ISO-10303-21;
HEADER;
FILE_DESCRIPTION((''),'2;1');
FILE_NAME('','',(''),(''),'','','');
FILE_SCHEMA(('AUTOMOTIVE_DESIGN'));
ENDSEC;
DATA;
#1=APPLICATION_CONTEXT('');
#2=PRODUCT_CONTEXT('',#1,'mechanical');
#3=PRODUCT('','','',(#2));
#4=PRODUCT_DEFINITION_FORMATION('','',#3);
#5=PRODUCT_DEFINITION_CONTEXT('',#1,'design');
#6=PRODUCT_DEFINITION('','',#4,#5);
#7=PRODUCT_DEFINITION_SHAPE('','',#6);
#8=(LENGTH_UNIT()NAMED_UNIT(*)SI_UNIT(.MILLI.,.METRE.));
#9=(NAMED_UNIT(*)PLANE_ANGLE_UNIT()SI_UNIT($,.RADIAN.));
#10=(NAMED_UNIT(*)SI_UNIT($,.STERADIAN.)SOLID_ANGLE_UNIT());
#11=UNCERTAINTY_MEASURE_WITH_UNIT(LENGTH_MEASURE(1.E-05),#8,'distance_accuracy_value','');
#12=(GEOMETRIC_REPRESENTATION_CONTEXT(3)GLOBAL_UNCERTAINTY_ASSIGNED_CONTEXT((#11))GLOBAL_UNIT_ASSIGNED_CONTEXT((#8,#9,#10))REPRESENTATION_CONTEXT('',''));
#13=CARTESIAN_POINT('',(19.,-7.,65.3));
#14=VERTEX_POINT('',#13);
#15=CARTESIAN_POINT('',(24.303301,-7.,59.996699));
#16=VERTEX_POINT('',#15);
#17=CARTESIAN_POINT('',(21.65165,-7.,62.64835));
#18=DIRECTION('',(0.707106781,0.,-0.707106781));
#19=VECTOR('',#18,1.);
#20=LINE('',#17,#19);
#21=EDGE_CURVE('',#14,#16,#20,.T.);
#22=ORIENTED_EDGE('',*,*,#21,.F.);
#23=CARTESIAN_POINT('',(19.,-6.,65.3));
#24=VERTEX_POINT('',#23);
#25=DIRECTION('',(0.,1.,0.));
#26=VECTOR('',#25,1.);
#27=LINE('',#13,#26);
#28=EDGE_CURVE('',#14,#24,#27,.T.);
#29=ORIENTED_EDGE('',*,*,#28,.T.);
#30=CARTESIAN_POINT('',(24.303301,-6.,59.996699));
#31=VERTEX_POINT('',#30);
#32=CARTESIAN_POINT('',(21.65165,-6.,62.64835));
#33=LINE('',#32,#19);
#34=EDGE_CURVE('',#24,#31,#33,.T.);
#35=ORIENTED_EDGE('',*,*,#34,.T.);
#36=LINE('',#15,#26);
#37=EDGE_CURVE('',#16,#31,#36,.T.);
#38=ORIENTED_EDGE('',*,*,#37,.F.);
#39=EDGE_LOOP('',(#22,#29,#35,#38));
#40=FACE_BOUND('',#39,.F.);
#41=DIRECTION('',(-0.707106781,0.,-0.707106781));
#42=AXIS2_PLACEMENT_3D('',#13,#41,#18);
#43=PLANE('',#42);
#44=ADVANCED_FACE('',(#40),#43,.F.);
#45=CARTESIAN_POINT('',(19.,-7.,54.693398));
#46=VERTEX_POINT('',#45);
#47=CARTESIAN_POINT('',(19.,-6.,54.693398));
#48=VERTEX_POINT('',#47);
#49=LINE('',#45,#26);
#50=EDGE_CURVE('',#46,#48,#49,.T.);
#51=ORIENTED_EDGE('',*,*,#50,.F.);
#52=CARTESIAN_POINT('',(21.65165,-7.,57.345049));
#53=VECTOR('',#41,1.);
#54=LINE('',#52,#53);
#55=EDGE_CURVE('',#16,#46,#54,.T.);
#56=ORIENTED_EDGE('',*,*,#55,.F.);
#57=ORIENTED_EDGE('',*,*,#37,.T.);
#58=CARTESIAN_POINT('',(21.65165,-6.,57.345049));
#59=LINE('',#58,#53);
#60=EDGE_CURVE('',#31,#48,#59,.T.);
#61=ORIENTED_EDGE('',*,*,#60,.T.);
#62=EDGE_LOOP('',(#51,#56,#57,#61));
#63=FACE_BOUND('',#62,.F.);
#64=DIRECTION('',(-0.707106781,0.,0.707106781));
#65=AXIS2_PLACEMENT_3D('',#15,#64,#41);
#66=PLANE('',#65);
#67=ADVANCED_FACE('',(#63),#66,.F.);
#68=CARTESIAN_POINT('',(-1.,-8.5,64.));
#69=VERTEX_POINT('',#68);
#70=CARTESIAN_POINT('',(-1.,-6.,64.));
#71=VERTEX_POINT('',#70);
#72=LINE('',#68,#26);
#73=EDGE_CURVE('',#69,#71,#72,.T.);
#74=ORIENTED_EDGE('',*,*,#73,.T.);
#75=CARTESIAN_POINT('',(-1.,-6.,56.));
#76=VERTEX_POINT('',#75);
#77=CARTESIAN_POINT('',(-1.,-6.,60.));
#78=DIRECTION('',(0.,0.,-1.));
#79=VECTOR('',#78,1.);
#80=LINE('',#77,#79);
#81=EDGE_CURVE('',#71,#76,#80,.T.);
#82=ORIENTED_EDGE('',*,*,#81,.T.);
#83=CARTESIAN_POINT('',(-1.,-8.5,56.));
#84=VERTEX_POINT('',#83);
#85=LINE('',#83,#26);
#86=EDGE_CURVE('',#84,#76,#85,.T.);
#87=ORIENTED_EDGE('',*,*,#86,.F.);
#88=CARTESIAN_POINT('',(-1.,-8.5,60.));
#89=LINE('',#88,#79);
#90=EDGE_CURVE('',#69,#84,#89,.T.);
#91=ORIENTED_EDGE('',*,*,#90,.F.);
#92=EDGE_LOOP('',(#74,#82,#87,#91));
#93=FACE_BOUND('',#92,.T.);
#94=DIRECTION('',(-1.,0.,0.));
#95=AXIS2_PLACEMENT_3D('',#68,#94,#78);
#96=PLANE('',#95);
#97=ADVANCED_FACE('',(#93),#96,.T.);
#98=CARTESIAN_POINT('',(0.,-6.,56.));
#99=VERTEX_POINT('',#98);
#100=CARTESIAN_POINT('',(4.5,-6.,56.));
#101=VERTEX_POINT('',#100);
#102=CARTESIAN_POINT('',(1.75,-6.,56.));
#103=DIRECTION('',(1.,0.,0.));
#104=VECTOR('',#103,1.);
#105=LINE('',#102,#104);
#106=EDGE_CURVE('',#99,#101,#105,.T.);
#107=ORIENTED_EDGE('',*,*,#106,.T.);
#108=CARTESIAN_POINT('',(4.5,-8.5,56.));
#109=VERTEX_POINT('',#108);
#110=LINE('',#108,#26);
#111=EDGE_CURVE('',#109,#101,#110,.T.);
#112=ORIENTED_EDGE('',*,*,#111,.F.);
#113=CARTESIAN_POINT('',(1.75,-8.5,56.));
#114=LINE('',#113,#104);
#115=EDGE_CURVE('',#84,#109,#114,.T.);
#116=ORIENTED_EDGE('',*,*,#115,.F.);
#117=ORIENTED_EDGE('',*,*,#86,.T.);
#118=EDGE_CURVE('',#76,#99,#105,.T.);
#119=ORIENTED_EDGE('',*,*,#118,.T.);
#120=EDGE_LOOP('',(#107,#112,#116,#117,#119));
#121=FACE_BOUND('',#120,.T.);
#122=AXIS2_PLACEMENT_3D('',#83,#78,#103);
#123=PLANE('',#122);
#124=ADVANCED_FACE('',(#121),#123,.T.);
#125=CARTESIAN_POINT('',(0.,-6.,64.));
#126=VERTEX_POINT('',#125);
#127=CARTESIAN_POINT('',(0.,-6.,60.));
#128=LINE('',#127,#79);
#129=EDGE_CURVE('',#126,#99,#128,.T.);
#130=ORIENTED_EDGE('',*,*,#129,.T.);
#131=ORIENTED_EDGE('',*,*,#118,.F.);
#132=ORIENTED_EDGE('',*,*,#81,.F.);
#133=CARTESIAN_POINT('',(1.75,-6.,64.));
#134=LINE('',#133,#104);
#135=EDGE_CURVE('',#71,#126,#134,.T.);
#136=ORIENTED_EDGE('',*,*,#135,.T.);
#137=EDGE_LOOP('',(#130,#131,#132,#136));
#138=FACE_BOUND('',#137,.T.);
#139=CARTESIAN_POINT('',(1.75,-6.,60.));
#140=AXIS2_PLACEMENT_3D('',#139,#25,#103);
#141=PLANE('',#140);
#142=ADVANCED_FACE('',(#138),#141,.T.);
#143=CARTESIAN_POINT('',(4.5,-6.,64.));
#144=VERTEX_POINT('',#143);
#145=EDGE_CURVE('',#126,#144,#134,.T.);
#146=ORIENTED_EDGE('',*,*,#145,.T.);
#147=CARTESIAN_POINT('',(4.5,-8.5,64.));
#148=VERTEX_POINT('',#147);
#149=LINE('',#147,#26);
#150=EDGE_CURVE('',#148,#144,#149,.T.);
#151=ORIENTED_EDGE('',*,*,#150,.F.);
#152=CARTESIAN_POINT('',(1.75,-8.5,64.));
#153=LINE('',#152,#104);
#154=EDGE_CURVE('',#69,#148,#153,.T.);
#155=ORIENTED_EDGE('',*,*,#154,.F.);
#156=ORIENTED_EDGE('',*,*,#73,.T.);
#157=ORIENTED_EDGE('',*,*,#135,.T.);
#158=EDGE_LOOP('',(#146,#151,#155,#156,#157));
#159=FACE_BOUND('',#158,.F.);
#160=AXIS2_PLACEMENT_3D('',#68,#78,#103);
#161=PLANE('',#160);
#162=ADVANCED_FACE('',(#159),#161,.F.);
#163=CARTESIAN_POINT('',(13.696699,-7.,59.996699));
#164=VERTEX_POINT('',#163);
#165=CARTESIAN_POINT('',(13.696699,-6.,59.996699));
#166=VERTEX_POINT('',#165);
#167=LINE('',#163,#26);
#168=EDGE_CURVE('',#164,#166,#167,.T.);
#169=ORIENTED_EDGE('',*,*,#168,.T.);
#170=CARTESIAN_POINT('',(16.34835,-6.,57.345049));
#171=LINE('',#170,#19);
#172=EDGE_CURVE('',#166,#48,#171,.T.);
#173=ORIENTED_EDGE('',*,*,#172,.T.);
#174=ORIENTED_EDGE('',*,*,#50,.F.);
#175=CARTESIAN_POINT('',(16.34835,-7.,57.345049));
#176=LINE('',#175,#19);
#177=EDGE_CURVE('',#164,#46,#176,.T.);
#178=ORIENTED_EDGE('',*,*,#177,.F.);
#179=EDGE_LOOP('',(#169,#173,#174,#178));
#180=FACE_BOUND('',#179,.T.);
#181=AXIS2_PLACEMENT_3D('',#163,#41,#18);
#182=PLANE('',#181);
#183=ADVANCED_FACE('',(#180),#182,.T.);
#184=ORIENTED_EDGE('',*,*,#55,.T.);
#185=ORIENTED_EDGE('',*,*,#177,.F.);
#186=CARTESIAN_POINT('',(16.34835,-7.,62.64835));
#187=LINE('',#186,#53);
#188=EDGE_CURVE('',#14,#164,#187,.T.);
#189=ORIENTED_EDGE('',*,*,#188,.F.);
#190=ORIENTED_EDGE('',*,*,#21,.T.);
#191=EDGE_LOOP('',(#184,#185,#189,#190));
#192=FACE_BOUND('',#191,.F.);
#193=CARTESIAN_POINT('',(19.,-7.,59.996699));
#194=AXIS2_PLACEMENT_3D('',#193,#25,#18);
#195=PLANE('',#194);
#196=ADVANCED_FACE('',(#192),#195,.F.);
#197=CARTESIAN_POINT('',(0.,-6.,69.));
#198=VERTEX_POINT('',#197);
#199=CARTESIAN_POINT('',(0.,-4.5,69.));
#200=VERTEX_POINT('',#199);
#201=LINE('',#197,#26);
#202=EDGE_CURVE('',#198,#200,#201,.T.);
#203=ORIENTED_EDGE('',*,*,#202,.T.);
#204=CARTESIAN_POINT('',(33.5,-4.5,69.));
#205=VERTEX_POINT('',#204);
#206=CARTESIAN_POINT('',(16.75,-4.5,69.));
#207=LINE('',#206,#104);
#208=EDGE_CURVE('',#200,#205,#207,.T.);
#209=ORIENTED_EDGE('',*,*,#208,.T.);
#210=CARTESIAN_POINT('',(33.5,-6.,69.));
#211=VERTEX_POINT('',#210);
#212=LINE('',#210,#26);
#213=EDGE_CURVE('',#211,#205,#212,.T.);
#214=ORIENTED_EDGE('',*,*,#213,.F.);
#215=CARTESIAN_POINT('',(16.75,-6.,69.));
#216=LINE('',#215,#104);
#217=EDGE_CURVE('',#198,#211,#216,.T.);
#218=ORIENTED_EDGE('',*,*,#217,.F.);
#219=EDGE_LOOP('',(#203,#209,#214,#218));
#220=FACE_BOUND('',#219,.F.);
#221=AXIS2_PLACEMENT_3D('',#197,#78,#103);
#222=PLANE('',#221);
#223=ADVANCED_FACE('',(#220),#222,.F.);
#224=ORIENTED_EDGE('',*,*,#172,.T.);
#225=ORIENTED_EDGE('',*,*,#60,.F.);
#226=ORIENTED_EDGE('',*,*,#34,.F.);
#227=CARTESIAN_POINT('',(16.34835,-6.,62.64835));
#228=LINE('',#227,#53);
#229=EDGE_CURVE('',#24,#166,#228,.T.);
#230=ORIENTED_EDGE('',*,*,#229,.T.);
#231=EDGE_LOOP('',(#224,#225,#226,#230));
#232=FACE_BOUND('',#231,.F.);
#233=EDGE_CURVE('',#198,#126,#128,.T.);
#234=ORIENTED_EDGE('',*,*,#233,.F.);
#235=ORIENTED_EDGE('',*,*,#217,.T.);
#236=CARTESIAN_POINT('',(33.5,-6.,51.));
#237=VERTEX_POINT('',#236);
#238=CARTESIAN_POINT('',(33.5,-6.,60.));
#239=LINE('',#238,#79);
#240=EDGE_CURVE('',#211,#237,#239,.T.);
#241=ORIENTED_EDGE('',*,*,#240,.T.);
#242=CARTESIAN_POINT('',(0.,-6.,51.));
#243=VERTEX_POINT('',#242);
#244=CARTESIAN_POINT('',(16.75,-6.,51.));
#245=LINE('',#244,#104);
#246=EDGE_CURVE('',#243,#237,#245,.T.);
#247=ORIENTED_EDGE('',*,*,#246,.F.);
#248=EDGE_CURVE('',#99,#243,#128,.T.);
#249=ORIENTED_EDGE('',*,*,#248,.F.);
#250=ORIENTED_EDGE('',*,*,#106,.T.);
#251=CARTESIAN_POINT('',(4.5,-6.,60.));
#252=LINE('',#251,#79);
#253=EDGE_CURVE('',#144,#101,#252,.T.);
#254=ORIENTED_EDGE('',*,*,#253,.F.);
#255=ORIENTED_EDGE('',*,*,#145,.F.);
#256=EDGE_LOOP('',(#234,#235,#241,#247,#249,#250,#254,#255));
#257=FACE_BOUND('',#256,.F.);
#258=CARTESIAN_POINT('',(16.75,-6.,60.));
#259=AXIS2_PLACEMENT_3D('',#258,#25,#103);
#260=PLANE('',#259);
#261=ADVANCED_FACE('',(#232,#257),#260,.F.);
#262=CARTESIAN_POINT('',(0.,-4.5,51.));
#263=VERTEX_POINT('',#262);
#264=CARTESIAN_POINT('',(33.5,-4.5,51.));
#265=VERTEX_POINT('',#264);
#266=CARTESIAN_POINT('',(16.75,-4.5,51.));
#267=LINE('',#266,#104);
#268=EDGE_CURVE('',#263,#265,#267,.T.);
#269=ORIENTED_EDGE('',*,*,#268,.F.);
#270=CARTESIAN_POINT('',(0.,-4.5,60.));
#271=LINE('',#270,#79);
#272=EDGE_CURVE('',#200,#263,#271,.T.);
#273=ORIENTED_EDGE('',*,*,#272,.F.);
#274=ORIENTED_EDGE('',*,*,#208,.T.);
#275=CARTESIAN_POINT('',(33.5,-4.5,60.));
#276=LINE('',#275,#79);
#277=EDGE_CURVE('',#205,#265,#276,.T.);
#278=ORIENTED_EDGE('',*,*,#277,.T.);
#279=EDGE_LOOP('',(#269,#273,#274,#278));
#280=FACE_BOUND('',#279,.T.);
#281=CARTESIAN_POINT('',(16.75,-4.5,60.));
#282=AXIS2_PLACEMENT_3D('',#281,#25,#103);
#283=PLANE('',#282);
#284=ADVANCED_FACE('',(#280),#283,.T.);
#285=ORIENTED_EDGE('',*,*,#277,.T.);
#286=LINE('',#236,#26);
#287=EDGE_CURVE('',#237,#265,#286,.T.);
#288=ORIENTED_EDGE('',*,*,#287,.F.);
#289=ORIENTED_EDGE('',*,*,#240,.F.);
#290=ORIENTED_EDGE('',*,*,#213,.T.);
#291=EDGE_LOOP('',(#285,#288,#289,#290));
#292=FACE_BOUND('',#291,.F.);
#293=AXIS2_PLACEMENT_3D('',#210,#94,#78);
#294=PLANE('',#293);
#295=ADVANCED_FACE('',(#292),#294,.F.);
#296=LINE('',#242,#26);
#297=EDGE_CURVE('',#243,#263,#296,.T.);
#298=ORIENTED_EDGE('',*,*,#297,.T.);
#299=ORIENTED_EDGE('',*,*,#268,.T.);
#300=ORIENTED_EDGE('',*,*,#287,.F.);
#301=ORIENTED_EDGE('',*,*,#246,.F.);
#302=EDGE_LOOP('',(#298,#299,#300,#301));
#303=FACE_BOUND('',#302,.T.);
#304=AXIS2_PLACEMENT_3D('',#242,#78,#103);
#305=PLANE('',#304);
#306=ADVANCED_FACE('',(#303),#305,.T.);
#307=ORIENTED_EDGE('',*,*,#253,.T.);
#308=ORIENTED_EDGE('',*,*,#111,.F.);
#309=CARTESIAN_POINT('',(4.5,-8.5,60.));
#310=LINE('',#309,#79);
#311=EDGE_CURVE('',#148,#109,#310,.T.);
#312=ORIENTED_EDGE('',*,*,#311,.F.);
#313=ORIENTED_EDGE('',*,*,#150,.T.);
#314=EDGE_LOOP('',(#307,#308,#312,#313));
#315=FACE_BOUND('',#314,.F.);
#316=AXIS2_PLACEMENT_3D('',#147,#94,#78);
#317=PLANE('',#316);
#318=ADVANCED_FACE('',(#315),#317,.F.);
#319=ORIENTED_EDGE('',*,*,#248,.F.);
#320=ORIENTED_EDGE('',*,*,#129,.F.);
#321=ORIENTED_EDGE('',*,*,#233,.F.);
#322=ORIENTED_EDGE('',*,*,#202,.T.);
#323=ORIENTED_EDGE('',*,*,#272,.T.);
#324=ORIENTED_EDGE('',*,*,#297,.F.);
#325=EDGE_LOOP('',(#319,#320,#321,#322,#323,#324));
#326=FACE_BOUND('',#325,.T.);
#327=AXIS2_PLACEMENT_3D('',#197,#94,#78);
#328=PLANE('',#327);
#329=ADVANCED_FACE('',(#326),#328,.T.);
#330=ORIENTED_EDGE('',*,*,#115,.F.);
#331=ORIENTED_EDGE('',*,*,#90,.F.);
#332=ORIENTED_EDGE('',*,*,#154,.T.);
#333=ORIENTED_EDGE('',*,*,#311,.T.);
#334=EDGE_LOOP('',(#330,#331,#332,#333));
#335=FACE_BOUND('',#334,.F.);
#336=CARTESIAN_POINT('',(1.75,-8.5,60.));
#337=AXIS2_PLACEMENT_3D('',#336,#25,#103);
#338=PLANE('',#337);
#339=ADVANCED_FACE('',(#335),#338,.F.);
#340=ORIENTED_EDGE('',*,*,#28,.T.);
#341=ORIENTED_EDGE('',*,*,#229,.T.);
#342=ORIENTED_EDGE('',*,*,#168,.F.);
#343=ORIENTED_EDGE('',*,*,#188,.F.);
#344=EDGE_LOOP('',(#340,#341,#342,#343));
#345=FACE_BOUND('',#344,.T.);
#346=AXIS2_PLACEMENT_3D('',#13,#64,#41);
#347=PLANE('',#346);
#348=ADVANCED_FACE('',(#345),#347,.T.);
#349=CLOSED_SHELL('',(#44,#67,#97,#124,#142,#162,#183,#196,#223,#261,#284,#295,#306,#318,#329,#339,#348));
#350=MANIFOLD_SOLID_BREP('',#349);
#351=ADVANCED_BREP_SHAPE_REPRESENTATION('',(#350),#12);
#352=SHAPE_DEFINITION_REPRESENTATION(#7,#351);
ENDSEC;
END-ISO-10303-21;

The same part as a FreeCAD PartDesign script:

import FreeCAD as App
import Part
import Sketcher
from FreeCAD import Vector
Q = App.Units.Quantity

doc = App.newDocument("Part")
params = doc.addObject("Spreadsheet::Sheet", "Params")
for row, (alias, value) in enumerate([
    ("sketch1_height", "18 mm"),
    ("sketch1_width", "33.5 mm"),
    ("pad1_length", "1.5 mm"),
    ("sketch2_height", "8 mm"),
    ("sketch2_width", "5.5 mm"),
    ("pad2_length", "2.5 mm"),
    ("sketch3_length", "7.5 mm"),
    ("pad3_length", "1 mm"),
], start=1):
    params.set(f"A{row}", alias)
    params.set(f"B{row}", "=" + value)
    params.setAlias(f"B{row}", alias)

body = doc.addObject("PartDesign::Body", "Body")

sketch1 = doc.addObject("Sketcher::SketchObject", "Sketch")
body.addObject(sketch1)
sketch1.AttachmentSupport = (doc.XZ_Plane, [""])
sketch1.MapMode = "FlatFace"
sketch1.addGeometry([
    Part.LineSegment(Vector(0, 18, 0), Vector(0, 0, 0)),
    Part.LineSegment(Vector(0, 0, 0), Vector(34, 0, 0)),
    Part.LineSegment(Vector(34, 0, 0), Vector(34, 18, 0)),
    Part.LineSegment(Vector(34, 18, 0), Vector(0, 18, 0)),
], False)
sketch1.addConstraint([
    Sketcher.Constraint("Coincident", 0, 2, 1, 1),
    Sketcher.Constraint("Coincident", 1, 2, 2, 1),
    Sketcher.Constraint("Coincident", 2, 2, 3, 1),
    Sketcher.Constraint("Coincident", 3, 2, 0, 1),
    Sketcher.Constraint("Vertical", 0),
    Sketcher.Constraint("Horizontal", 1),
    Sketcher.Constraint("Vertical", 2),
    Sketcher.Constraint("Horizontal", 3),
    Sketcher.Constraint("Coincident", 0, 2, -1, 1),
    Sketcher.Constraint("DistanceY", 0, 2, 0, 1, Q("18 mm")),
    Sketcher.Constraint("DistanceX", 1, 1, 1, 2, Q("33.5 mm")),
])
sketch1.setExpression("Constraints[9]", "Params.sketch1_height")
sketch1.setExpression("Constraints[10]", "Params.sketch1_width")
pad1 = doc.addObject("PartDesign::Pad", "Pad")
body.addObject(pad1)
pad1.Profile = sketch1
pad1.setExpression("Length", "Params.pad1_length")

sketch2 = doc.addObject("Sketcher::SketchObject", "Sketch001")
body.addObject(sketch2)
sketch2.AttachmentSupport = (doc.XZ_Plane, [""])
sketch2.MapMode = "FlatFace"
sketch2.AttachmentOffset = App.Placement(Vector(0, 0, -2.5), App.Rotation())
sketch2.addGeometry([
    Part.LineSegment(Vector(-1, 13, 0), Vector(-1, 5, 0)),
    Part.LineSegment(Vector(-1, 5, 0), Vector(4, 5, 0)),
    Part.LineSegment(Vector(4, 5, 0), Vector(4, 13, 0)),
    Part.LineSegment(Vector(4, 13, 0), Vector(-1, 13, 0)),
], False)
sketch2.addConstraint([
    Sketcher.Constraint("Coincident", 0, 2, 1, 1),
    Sketcher.Constraint("Coincident", 1, 2, 2, 1),
    Sketcher.Constraint("Coincident", 2, 2, 3, 1),
    Sketcher.Constraint("Coincident", 3, 2, 0, 1),
    Sketcher.Constraint("Vertical", 0),
    Sketcher.Constraint("Horizontal", 1),
    Sketcher.Constraint("Vertical", 2),
    Sketcher.Constraint("Horizontal", 3),
    Sketcher.Constraint("DistanceY", 0, 2, 0, 1, Q("8 mm")),
    Sketcher.Constraint("DistanceX", 1, 1, 1, 2, Q("5.5 mm")),
    Sketcher.Constraint("DistanceX", 0, 2, -1, 1, Q("1 mm")),
    Sketcher.Constraint("DistanceY", -1, 1, 0, 2, Q("5 mm")),
])
sketch2.setExpression("Constraints[8]", "Params.sketch2_height")
sketch2.setExpression("Constraints[9]", "Params.sketch2_width")
pad2 = doc.addObject("PartDesign::Pad", "Pad001")
body.addObject(pad2)
pad2.Profile = sketch2
pad2.setExpression("Length", "Params.pad2_length")

sketch3 = doc.addObject("Sketcher::SketchObject", "Sketch002")
body.addObject(sketch3)
sketch3.AttachmentSupport = (doc.XZ_Plane, [""])
sketch3.MapMode = "FlatFace"
sketch3.AttachmentOffset = App.Placement(Vector(0, 0, -1), App.Rotation())
sketch3.addGeometry([
    Part.LineSegment(Vector(14, 9, 0), Vector(19, 4, 0)),
    Part.LineSegment(Vector(19, 4, 0), Vector(24, 9, 0)),
    Part.LineSegment(Vector(24, 9, 0), Vector(19, 14, 0)),
    Part.LineSegment(Vector(19, 14, 0), Vector(14, 9, 0)),
], False)
sketch3.addConstraint([
    Sketcher.Constraint("Coincident", 0, 2, 1, 1),
    Sketcher.Constraint("Coincident", 1, 2, 2, 1),
    Sketcher.Constraint("Coincident", 2, 2, 3, 1),
    Sketcher.Constraint("Coincident", 3, 2, 0, 1),
    Sketcher.Constraint("Perpendicular", 0, 1),
    Sketcher.Constraint("Perpendicular", 1, 2),
    Sketcher.Constraint("Perpendicular", 2, 3),
    Sketcher.Constraint("Horizontal", 1, 2, 3, 2),
    Sketcher.Constraint("Vertical", 0, 2, 2, 2),
    Sketcher.Constraint("DistanceX", -1, 1, 0, 2, Q("19 mm")),
    Sketcher.Constraint("Distance", 0, Q("7.5 mm")),
    Sketcher.Constraint("DistanceY", -1, 1, 0, 2, Q("3.7 mm")),
])
sketch3.setExpression("Constraints[10]", "Params.sketch3_length")
pad3 = doc.addObject("PartDesign::Pad", "Pad002")
body.addObject(pad3)
pad3.Profile = sketch3
pad3.setExpression("Length", "Params.pad3_length")
body2 = doc.addObject("PartDesign::Body", "Body001")
doc.recompute()

body.Placement = App.Placement(Vector(0, -6, 69), App.Rotation(Vector(1, 0, 0), 180))
boolean = doc.addObject("PartDesign::Boolean", "Boolean")
body2.addObject(boolean)
boolean.Type = "Fuse"
boolean.addObjects([body])

doc.recompute()
